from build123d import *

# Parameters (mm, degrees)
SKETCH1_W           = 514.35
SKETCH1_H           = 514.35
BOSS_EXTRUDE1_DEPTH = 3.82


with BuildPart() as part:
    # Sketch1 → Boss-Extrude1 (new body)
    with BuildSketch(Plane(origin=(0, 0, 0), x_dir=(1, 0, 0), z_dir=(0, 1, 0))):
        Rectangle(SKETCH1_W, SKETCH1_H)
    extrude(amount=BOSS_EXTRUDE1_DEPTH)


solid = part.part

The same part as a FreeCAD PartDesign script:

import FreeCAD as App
import Part
import Sketcher

V = App.Vector
Q = App.Units.Quantity

doc = App.newDocument("Part")
params = doc.addObject("Spreadsheet::Sheet", "Params")
for row, (alias, value) in enumerate([
    ("sketch1_width", "20.25 in"),
    ("pad1_length", "3.82 mm"),
], start=1):
    params.set(f"A{row}", alias)
    params.set(f"B{row}", "=" + value)
    params.setAlias(f"B{row}", alias)

body = doc.addObject("PartDesign::Body", "Body")

sketch1 = doc.addObject("Sketcher::SketchObject", "Sketch")
body.addObject(sketch1)
sketch1.AttachmentSupport = (doc.XZ_Plane, [""])
sketch1.MapMode = "FlatFace"
sketch1.addGeometry([
    Part.LineSegment(V(-257, -257, 0), V(-257, 257, 0)),
    Part.LineSegment(V(-257, 257, 0), V(257, 257, 0)),
    Part.LineSegment(V(257, 257, 0), V(257, -257, 0)),
    Part.LineSegment(V(257, -257, 0), V(-257, -257, 0)),
], False)
sketch1.addConstraint([
    Sketcher.Constraint("Coincident", 0, 2, 1, 1),
    Sketcher.Constraint("Coincident", 1, 2, 2, 1),
    Sketcher.Constraint("Coincident", 2, 2, 3, 1),
    Sketcher.Constraint("Coincident", 3, 2, 0, 1),
    Sketcher.Constraint("Vertical", 0),
    Sketcher.Constraint("Horizontal", 1),
    Sketcher.Constraint("Vertical", 2),
    Sketcher.Constraint("Horizontal", 3),
    Sketcher.Constraint("Symmetric", 0, 2, 2, 2, -1, 1),
    Sketcher.Constraint("Equal", 3, 0),
    Sketcher.Constraint("DistanceX", 1, 1, 1, 2, Q("20.25 in")),
])
sketch1.setExpression("Constraints[10]", "Params.sketch1_width")
pad1 = doc.addObject("PartDesign::Pad", "Pad")
body.addObject(pad1)
pad1.Profile = sketch1
pad1.setExpression("Length", "Params.pad1_length")
pad1.Reversed = True

doc.recompute()
